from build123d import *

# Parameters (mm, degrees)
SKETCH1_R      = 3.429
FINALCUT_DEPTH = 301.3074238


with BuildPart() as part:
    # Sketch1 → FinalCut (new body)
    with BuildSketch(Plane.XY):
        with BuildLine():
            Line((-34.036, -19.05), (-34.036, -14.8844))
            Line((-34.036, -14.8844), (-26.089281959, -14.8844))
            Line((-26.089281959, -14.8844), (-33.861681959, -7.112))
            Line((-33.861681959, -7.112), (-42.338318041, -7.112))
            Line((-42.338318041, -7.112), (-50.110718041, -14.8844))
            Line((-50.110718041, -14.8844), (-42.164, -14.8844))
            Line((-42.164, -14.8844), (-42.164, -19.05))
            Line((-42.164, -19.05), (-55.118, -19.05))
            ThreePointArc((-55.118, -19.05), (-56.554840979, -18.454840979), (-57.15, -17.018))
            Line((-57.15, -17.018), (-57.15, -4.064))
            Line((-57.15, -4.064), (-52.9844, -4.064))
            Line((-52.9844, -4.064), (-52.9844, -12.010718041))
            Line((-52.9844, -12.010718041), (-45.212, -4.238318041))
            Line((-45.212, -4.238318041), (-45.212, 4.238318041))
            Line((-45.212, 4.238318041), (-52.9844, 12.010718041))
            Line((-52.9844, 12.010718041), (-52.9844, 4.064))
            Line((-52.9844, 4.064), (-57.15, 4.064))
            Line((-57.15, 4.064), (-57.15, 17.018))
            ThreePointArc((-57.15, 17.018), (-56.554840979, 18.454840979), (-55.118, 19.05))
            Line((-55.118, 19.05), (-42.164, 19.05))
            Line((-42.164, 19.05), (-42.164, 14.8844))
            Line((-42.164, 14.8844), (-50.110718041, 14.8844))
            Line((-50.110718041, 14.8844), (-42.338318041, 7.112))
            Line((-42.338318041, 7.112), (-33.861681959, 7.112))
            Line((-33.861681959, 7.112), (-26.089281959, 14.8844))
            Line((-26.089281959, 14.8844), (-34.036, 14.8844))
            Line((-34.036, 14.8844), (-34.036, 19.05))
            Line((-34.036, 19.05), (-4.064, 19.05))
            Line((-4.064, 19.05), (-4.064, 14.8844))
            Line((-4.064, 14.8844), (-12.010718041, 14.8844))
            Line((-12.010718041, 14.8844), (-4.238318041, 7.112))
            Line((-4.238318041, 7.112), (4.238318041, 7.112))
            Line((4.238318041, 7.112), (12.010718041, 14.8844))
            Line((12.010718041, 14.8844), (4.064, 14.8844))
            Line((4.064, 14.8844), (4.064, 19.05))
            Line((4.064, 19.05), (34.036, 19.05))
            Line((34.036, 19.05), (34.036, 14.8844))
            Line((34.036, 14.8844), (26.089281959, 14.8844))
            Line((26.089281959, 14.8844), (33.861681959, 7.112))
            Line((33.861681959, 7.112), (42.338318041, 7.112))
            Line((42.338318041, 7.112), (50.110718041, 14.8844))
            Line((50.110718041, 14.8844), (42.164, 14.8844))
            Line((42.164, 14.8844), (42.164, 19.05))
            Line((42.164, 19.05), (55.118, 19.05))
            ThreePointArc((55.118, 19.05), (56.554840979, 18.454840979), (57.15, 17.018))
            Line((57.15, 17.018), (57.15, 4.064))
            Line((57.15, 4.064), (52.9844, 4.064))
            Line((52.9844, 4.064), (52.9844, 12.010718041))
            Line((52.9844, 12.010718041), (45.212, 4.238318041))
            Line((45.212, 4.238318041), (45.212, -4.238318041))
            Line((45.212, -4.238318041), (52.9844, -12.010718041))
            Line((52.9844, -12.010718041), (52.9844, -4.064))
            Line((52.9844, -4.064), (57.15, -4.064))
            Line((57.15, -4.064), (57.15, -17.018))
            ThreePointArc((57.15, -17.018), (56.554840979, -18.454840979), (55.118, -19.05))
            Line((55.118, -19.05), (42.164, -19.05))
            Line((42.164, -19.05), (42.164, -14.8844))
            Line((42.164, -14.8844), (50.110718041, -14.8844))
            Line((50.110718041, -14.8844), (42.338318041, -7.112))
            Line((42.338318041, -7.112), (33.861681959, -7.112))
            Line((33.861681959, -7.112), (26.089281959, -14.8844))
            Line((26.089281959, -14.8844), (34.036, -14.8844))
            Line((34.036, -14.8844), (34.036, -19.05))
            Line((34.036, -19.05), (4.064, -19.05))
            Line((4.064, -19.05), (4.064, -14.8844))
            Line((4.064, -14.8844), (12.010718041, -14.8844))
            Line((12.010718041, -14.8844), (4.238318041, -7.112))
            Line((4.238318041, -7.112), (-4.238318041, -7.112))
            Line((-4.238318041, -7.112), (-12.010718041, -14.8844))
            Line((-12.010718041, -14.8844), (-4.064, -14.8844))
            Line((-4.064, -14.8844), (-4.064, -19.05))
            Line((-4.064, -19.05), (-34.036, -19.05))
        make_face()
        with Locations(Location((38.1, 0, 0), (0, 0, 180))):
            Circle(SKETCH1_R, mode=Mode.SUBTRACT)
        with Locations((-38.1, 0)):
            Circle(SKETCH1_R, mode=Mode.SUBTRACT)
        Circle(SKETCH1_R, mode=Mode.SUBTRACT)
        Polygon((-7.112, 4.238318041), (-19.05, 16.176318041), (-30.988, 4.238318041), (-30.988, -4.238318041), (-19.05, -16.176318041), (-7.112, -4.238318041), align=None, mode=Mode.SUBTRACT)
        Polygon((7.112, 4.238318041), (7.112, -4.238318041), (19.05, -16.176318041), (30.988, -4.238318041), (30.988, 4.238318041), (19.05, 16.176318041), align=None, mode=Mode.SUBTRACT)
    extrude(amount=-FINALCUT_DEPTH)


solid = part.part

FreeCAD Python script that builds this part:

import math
import FreeCAD as App
import Part
import Sketcher

V = App.Vector
Q = App.Units.Quantity


def add_polygon(sketch, points):
    """Adds a closed chain of lines whose ends are joined by coincident constraints."""
    first, n = sketch.GeometryCount, len(points)
    for a, b in zip(points, points[1:] + points[:1]):
        sketch.addGeometry(Part.LineSegment(App.Vector(*a, 0), App.Vector(*b, 0)), False)
    for i in range(n):
        sketch.addConstraint(Sketcher.Constraint("Coincident", first + i, 2, first + (i + 1) % n, 1))

doc = App.newDocument("Part")
body = doc.addObject("PartDesign::Body", "Body")

sketch1 = body.newObject("Sketcher::SketchObject", "Sketch")
sketch1.AttachmentSupport = (doc.getObject("XY_Plane"), [""])
sketch1.MapMode = "FlatFace"
sketch1.addGeometry(Part.LineSegment(V(-34, -14.9, 0), V(-34, -19.1, 0)), False)
sketch1.addGeometry(Part.LineSegment(V(-34, -19.1, 0), V(-4.1, -19.1, 0)), False)
sketch1.addGeometry(Part.LineSegment(V(-4.1, -19.1, 0), V(-4.1, -14.9, 0)), False)
sketch1.addGeometry(Part.LineSegment(V(-4.1, -14.9, 0), V(-12, -14.9, 0)), False)
sketch1.addGeometry(Part.LineSegment(V(-12, -14.9, 0), V(-4.2, -7.1, 0)), False)
sketch1.addGeometry(Part.LineSegment(V(-4.2, -7.1, 0), V(4.2, -7.1, 0)), False)
sketch1.addGeometry(Part.LineSegment(V(4.2, -7.1, 0), V(12, -14.9, 0)), False)
sketch1.addGeometry(Part.LineSegment(V(12, -14.9, 0), V(4.1, -14.9, 0)), False)
sketch1.addGeometry(Part.LineSegment(V(4.1, -14.9, 0), V(4.1, -19.1, 0)), False)
sketch1.addGeometry(Part.LineSegment(V(4.1, -19.1, 0), V(34, -19.1, 0)), False)
sketch1.addGeometry(Part.LineSegment(V(34, -19.1, 0), V(34, -14.9, 0)), False)
sketch1.addGeometry(Part.LineSegment(V(34, -14.9, 0), V(26.1, -14.9, 0)), False)
sketch1.addGeometry(Part.LineSegment(V(26.1, -14.9, 0), V(33.9, -7.1, 0)), False)
sketch1.addGeometry(Part.LineSegment(V(33.9, -7.1, 0), V(42.3, -7.1, 0)), False)
sketch1.addGeometry(Part.LineSegment(V(42.3, -7.1, 0), V(50.1, -14.9, 0)), False)
sketch1.addGeometry(Part.LineSegment(V(50.1, -14.9, 0), V(42.2, -14.9, 0)), False)
sketch1.addGeometry(Part.LineSegment(V(42.2, -14.9, 0), V(42.2, -19.1, 0)), False)
sketch1.addGeometry(Part.LineSegment(V(42.2, -19.1, 0), V(55.1, -19.1, 0)), False)
sketch1.addGeometry(Part.ArcOfCircle(Part.Circle(V(55.1, -17, 0), V(0, 0, 1), 2), math.radians(-90), math.radians(0)), False)
sketch1.addGeometry(Part.LineSegment(V(57.1, -17, 0), V(57.1, -4.1, 0)), False)
sketch1.addGeometry(Part.LineSegment(V(57.1, -4.1, 0), V(53, -4.1, 0)), False)
sketch1.addGeometry(Part.LineSegment(V(53, -4.1, 0), V(53, -12, 0)), False)
sketch1.addGeometry(Part.LineSegment(V(53, -12, 0), V(45.2, -4.2, 0)), False)
sketch1.addGeometry(Part.LineSegment(V(45.2, -4.2, 0), V(45.2, 4.2, 0)), False)
sketch1.addGeometry(Part.LineSegment(V(45.2, 4.2, 0), V(53, 12, 0)), False)
sketch1.addGeometry(Part.LineSegment(V(53, 12, 0), V(53, 4.1, 0)), False)
sketch1.addGeometry(Part.LineSegment(V(53, 4.1, 0), V(57.1, 4.1, 0)), False)
sketch1.addGeometry(Part.LineSegment(V(57.1, 4.1, 0), V(57.1, 17, 0)), False)
sketch1.addGeometry(Part.ArcOfCircle(Part.Circle(V(55.1, 17, 0), V(0, 0, 1), 2), math.radians(0), math.radians(90)), False)
sketch1.addGeometry(Part.LineSegment(V(55.1, 19.1, 0), V(42.2, 19.1, 0)), False)
sketch1.addGeometry(Part.LineSegment(V(42.2, 19.1, 0), V(42.2, 14.9, 0)), False)
sketch1.addGeometry(Part.LineSegment(V(42.2, 14.9, 0), V(50.1, 14.9, 0)), False)
sketch1.addGeometry(Part.LineSegment(V(50.1, 14.9, 0), V(42.3, 7.1, 0)), False)
sketch1.addGeometry(Part.LineSegment(V(42.3, 7.1, 0), V(33.9, 7.1, 0)), False)
sketch1.addGeometry(Part.LineSegment(V(33.9, 7.1, 0), V(26.1, 14.9, 0)), False)
sketch1.addGeometry(Part.LineSegment(V(26.1, 14.9, 0), V(34, 14.9, 0)), False)
sketch1.addGeometry(Part.LineSegment(V(34, 14.9, 0), V(34, 19.1, 0)), False)
sketch1.addGeometry(Part.LineSegment(V(34, 19.1, 0), V(4.1, 19.1, 0)), False)
sketch1.addGeometry(Part.LineSegment(V(4.1, 19.1, 0), V(4.1, 14.9, 0)), False)
sketch1.addGeometry(Part.LineSegment(V(4.1, 14.9, 0), V(12, 14.9, 0)), False)
sketch1.addGeometry(Part.LineSegment(V(12, 14.9, 0), V(4.2, 7.1, 0)), False)
sketch1.addGeometry(Part.LineSegment(V(4.2, 7.1, 0), V(-4.2, 7.1, 0)), False)
sketch1.addGeometry(Part.LineSegment(V(-4.2, 7.1, 0), V(-12, 14.9, 0)), False)
sketch1.addGeometry(Part.LineSegment(V(-12, 14.9, 0), V(-4.1, 14.9, 0)), False)
sketch1.addGeometry(Part.LineSegment(V(-4.1, 14.9, 0), V(-4.1, 19.1, 0)), False)
sketch1.addGeometry(Part.LineSegment(V(-4.1, 19.1, 0), V(-34, 19.1, 0)), False)
sketch1.addGeometry(Part.LineSegment(V(-34, 19.1, 0), V(-34, 14.9, 0)), False)
sketch1.addGeometry(Part.LineSegment(V(-34, 14.9, 0), V(-26.1, 14.9, 0)), False)
sketch1.addGeometry(Part.LineSegment(V(-26.1, 14.9, 0), V(-33.9, 7.1, 0)), False)
sketch1.addGeometry(Part.LineSegment(V(-33.9, 7.1, 0), V(-42.3, 7.1, 0)), False)
sketch1.addGeometry(Part.LineSegment(V(-42.3, 7.1, 0), V(-50.1, 14.9, 0)), False)
sketch1.addGeometry(Part.LineSegment(V(-50.1, 14.9, 0), V(-42.2, 14.9, 0)), False)
sketch1.addGeometry(Part.LineSegment(V(-42.2, 14.9, 0), V(-42.2, 19.1, 0)), False)
sketch1.addGeometry(Part.LineSegment(V(-42.2, 19.1, 0), V(-55.1, 19.1, 0)), False)
sketch1.addGeometry(Part.ArcOfCircle(Part.Circle(V(-55.1, 17, 0), V(0, 0, 1), 2), math.radians(90), math.radians(180)), False)
sketch1.addGeometry(Part.LineSegment(V(-57.1, 17, 0), V(-57.1, 4.1, 0)), False)
sketch1.addGeometry(Part.LineSegment(V(-57.1, 4.1, 0), V(-53, 4.1, 0)), False)
sketch1.addGeometry(Part.LineSegment(V(-53, 4.1, 0), V(-53, 12, 0)), False)
sketch1.addGeometry(Part.LineSegment(V(-53, 12, 0), V(-45.2, 4.2, 0)), False)
sketch1.addGeometry(Part.LineSegment(V(-45.2, 4.2, 0), V(-45.2, -4.2, 0)), False)
sketch1.addGeometry(Part.LineSegment(V(-45.2, -4.2, 0), V(-53, -12, 0)), False)
sketch1.addGeometry(Part.LineSegment(V(-53, -12, 0), V(-53, -4.1, 0)), False)
sketch1.addGeometry(Part.LineSegment(V(-53, -4.1, 0), V(-57.1, -4.1, 0)), False)
sketch1.addGeometry(Part.LineSegment(V(-57.1, -4.1, 0), V(-57.1, -17, 0)), False)
sketch1.addGeometry(Part.ArcOfCircle(Part.Circle(V(-55.1, -17, 0), V(0, 0, 1), 2), math.radians(-180), math.radians(-90)), False)
sketch1.addGeometry(Part.LineSegment(V(-55.1, -19.1, 0), V(-42.2, -19.1, 0)), False)
sketch1.addGeometry(Part.LineSegment(V(-42.2, -19.1, 0), V(-42.2, -14.9, 0)), False)
sketch1.addGeometry(Part.LineSegment(V(-42.2, -14.9, 0), V(-50.1, -14.9, 0)), False)
sketch1.addGeometry(Part.LineSegment(V(-50.1, -14.9, 0), V(-42.3, -7.1, 0)), False)
sketch1.addGeometry(Part.LineSegment(V(-42.3, -7.1, 0), V(-33.9, -7.1, 0)), False)
sketch1.addGeometry(Part.LineSegment(V(-33.9, -7.1, 0), V(-26.1, -14.9, 0)), False)
sketch1.addGeometry(Part.LineSegment(V(-26.1, -14.9, 0), V(-34, -14.9, 0)), False)
sketch1.addGeometry(Part.Circle(V(38.1, 0, 0), V(0, 0, 1), 3.4), False)
add_polygon(sketch1, [(7.1, 4.2), (19.1, 16.2), (31, 4.2), (31, -4.2), (19.1, -16.2), (7.1, -4.2)])
sketch1.addGeometry(Part.Circle(V(0, 0, 0), V(0, 0, 1), 3.4), False)
add_polygon(sketch1, [(-7.1, 4.2), (-7.1, -4.2), (-19.1, -16.2), (-31, -4.2), (-31, 4.2), (-19.1, 16.2)])
sketch1.addGeometry(Part.Circle(V(-38.1, 0, 0), V(0, 0, 1), 3.4), False)
sketch1.addConstraint([
    Sketcher.Constraint("Coincident", 0, 2, 1, 1),
    Sketcher.Constraint("Coincident", 1, 2, 2, 1),
    Sketcher.Constraint("Coincident", 2, 2, 3, 1),
    Sketcher.Constraint("Coincident", 3, 2, 4, 1),
    Sketcher.Constraint("Coincident", 4, 2, 5, 1),
    Sketcher.Constraint("Coincident", 5, 2, 6, 1),
    Sketcher.Constraint("Coincident", 6, 2, 7, 1),
    Sketcher.Constraint("Coincident", 7, 2, 8, 1),
    Sketcher.Constraint("Coincident", 8, 2, 9, 1),
    Sketcher.Constraint("Coincident", 9, 2, 10, 1),
    Sketcher.Constraint("Coincident", 10, 2, 11, 1),
    Sketcher.Constraint("Coincident", 11, 2, 12, 1),
    Sketcher.Constraint("Coincident", 12, 2, 13, 1),
    Sketcher.Constraint("Coincident", 13, 2, 14, 1),
    Sketcher.Constraint("Coincident", 14, 2, 15, 1),
    Sketcher.Constraint("Coincident", 15, 2, 16, 1),
    Sketcher.Constraint("Coincident", 16, 2, 17, 1),
    Sketcher.Constraint("Tangent", 17, 2, 18, 1),
    Sketcher.Constraint("Tangent", 18, 2, 19, 1),
    Sketcher.Constraint("Coincident", 19, 2, 20, 1),
    Sketcher.Constraint("Coincident", 20, 2, 21, 1),
    Sketcher.Constraint("Coincident", 21, 2, 22, 1),
    Sketcher.Constraint("Coincident", 22, 2, 23, 1),
    Sketcher.Constraint("Coincident", 23, 2, 24, 1),
    Sketcher.Constraint("Coincident", 24, 2, 25, 1),
    Sketcher.Constraint("Coincident", 25, 2, 26, 1),
    Sketcher.Constraint("Coincident", 26, 2, 27, 1),
    Sketcher.Constraint("Tangent", 27, 2, 28, 1),
    Sketcher.Constraint("Tangent", 28, 2, 29, 1),
    Sketcher.Constraint("Coincident", 29, 2, 30, 1),
    Sketcher.Constraint("Coincident", 30, 2, 31, 1),
    Sketcher.Constraint("Coincident", 31, 2, 32, 1),
    Sketcher.Constraint("Coincident", 32, 2, 33, 1),
    Sketcher.Constraint("Coincident", 33, 2, 34, 1),
    Sketcher.Constraint("Coincident", 34, 2, 35, 1),
    Sketcher.Constraint("Coincident", 35, 2, 36, 1),
    Sketcher.Constraint("Coincident", 36, 2, 37, 1),
    Sketcher.Constraint("Coincident", 37, 2, 38, 1),
    Sketcher.Constraint("Coincident", 38, 2, 39, 1),
    Sketcher.Constraint("Coincident", 39, 2, 40, 1),
    Sketcher.Constraint("Coincident", 40, 2, 41, 1),
    Sketcher.Constraint("Coincident", 41, 2, 42, 1),
    Sketcher.Constraint("Coincident", 42, 2, 43, 1),
    Sketcher.Constraint("Coincident", 43, 2, 44, 1),
    Sketcher.Constraint("Coincident", 44, 2, 45, 1),
    Sketcher.Constraint("Coincident", 45, 2, 46, 1),
    Sketcher.Constraint("Coincident", 46, 2, 47, 1),
    Sketcher.Constraint("Coincident", 47, 2, 48, 1),
    Sketcher.Constraint("Coincident", 48, 2, 49, 1),
    Sketcher.Constraint("Coincident", 49, 2, 50, 1),
    Sketcher.Constraint("Coincident", 50, 2, 51, 1),
    Sketcher.Constraint("Coincident", 51, 2, 52, 1),
    Sketcher.Constraint("Coincident", 52, 2, 53, 1),
    Sketcher.Constraint("Tangent", 53, 2, 54, 1),
    Sketcher.Constraint("Tangent", 54, 2, 55, 1),
    Sketcher.Constraint("Coincident", 55, 2, 56, 1),
    Sketcher.Constraint("Coincident", 56, 2, 57, 1),
    Sketcher.Constraint("Coincident", 57, 2, 58, 1),
    Sketcher.Constraint("Coincident", 58, 2, 59, 1),
    Sketcher.Constraint("Coincident", 59, 2, 60, 1),
    Sketcher.Constraint("Coincident", 60, 2, 61, 1),
    Sketcher.Constraint("Coincident", 61, 2, 62, 1),
    Sketcher.Constraint("Coincident", 62, 2, 63, 1),
    Sketcher.Constraint("Tangent", 63, 2, 64, 1),
    Sketcher.Constraint("Tangent", 64, 2, 65, 1),
    Sketcher.Constraint("Coincident", 65, 2, 66, 1),
    Sketcher.Constraint("Coincident", 66, 2, 67, 1),
    Sketcher.Constraint("Coincident", 67, 2, 68, 1),
    Sketcher.Constraint("Coincident", 68, 2, 69, 1),
    Sketcher.Constraint("Coincident", 69, 2, 70, 1),
    Sketcher.Constraint("Coincident", 70, 2, 71, 1),
    Sketcher.Constraint("Coincident", 71, 2, 0, 1),
    Sketcher.Constraint("Vertical", 0),
    Sketcher.Constraint("Horizontal", 1),
    Sketcher.Constraint("Vertical", 2),
    Sketcher.Constraint("Horizontal", 3),
    Sketcher.Constraint("Horizontal", 5),
    Sketcher.Constraint("Horizontal", 7),
    Sketcher.Constraint("Vertical", 8),
    Sketcher.Constraint("Horizontal", 9),
    Sketcher.Constraint("Vertical", 10),
    Sketcher.Constraint("Horizontal", 11),
    Sketcher.Constraint("Horizontal", 13),
    Sketcher.Constraint("Horizontal", 15),
    Sketcher.Constraint("Vertical", 16),
    Sketcher.Constraint("Horizontal", 17),
    Sketcher.Constraint("Vertical", 19),
    Sketcher.Constraint("Horizontal", 20),
    Sketcher.Constraint("Vertical", 21),
    Sketcher.Constraint("Vertical", 23),
    Sketcher.Constraint("Vertical", 25),
    Sketcher.Constraint("Horizontal", 26),
    Sketcher.Constraint("Vertical", 27),
    Sketcher.Constraint("Horizontal", 29),
    Sketcher.Constraint("Vertical", 30),
    Sketcher.Constraint("Horizontal", 31),
    Sketcher.Constraint("Horizontal", 33),
    Sketcher.Constraint("Horizontal", 35),
    Sketcher.Constraint("Vertical", 36),
    Sketcher.Constraint("Horizontal", 37),
    Sketcher.Constraint("Vertical", 38),
    Sketcher.Constraint("Horizontal", 39),
    Sketcher.Constraint("Horizontal", 41),
    Sketcher.Constraint("Horizontal", 43),
    Sketcher.Constraint("Vertical", 44),
    Sketcher.Constraint("Horizontal", 45),
    Sketcher.Constraint("Vertical", 46),
    Sketcher.Constraint("Horizontal", 47),
    Sketcher.Constraint("Horizontal", 49),
    Sketcher.Constraint("Horizontal", 51),
    Sketcher.Constraint("Vertical", 52),
    Sketcher.Constraint("Horizontal", 53),
    Sketcher.Constraint("Vertical", 55),
    Sketcher.Constraint("Horizontal", 56),
    Sketcher.Constraint("Vertical", 57),
    Sketcher.Constraint("Vertical", 59),
    Sketcher.Constraint("Vertical", 61),
    Sketcher.Constraint("Horizontal", 62),
    Sketcher.Constraint("Vertical", 63),
    Sketcher.Constraint("Horizontal", 65),
    Sketcher.Constraint("Vertical", 66),
    Sketcher.Constraint("Horizontal", 67),
    Sketcher.Constraint("Horizontal", 69),
    Sketcher.Constraint("Horizontal", 71),
    Sketcher.Constraint("Vertical", 75),
    Sketcher.Constraint("Vertical", 78),
    Sketcher.Constraint("Vertical", 80),
    Sketcher.Constraint("Vertical", 83),
    Sketcher.Constraint("Coincident", 79, 3, -1, 1),
    Sketcher.Constraint("Equal", 18, 28),
    Sketcher.Constraint("Equal", 28, 54),
    Sketcher.Constraint("Equal", 54, 64),
    Sketcher.Constraint("Equal", 72, 79),
    Sketcher.Constraint("Equal", 79, 86),
    Sketcher.Constraint("Symmetric", 18, 3, 54, 3, -1, 1),
    Sketcher.Constraint("Symmetric", 28, 3, 64, 3, -1, 1),
    Sketcher.Constraint("Symmetric", 72, 3, 86, 3, -1, 1),
    Sketcher.Constraint("Symmetric", 0, 2, 36, 2, -1, 1),
    Sketcher.Constraint("Symmetric", 2, 2, 38, 2, -1, 1),
    Sketcher.Constraint("Symmetric", 4, 2, 40, 2, -1, 1),
    Sketcher.Constraint("Symmetric", 6, 2, 42, 2, -1, 1),
    Sketcher.Constraint("Symmetric", 8, 2, 44, 2, -1, 1),
    Sketcher.Constraint("Symmetric", 10, 2, 46, 2, -1, 1),
    Sketcher.Constraint("Symmetric", 12, 2, 48, 2, -1, 1),
    Sketcher.Constraint("Symmetric", 14, 2, 50, 2, -1, 1),
    Sketcher.Constraint("Symmetric", 20, 2, 56, 2, -1, 1),
    Sketcher.Constraint("Symmetric", 22, 2, 58, 2, -1, 1),
    Sketcher.Constraint("Symmetric", 24, 2, 60, 2, -1, 1),
    Sketcher.Constraint("Symmetric", 30, 2, 66, 2, -1, 1),
    Sketcher.Constraint("Symmetric", 32, 2, 68, 2, -1, 1),
    Sketcher.Constraint("Symmetric", 34, 2, 70, 2, -1, 1),
    Sketcher.Constraint("Symmetric", 78, 2, 80, 2, -1, 1),
    Sketcher.Constraint("Symmetric", 73, 2, 81, 2, -1, 1),
    Sketcher.Constraint("Symmetric", 74, 2, 82, 2, -1, 1),
    Sketcher.Constraint("Symmetric", 76, 2, 84, 2, -1, 1),
    Sketcher.Constraint("Symmetric", 28, 3, 54, 3, -2),
    Sketcher.Constraint("Symmetric", 3, 2, 6, 2, -2),
    Sketcher.Constraint("Symmetric", 1, 2, 8, 2, -2),
    Sketcher.Constraint("Symmetric", 35, 2, 46, 2, -2),
    Sketcher.Constraint("Symmetric", 33, 2, 48, 2, -2),
    Sketcher.Constraint("Symmetric", 31, 2, 50, 2, -2),
    Sketcher.Constraint("Symmetric", 25, 2, 56, 2, -2),
    Sketcher.Constraint("Symmetric", 76, 2, 81, 2, -2),
    Sketcher.Constraint("PointOnObject", 72, 3, -1),
    Sketcher.Constraint("Perpendicular", 4, 6),
    Sketcher.Constraint("Perpendicular", 6, 12),
    Sketcher.Constraint("Perpendicular", 12, 14),
    Sketcher.Constraint("Parallel", 14, 22),
    Sketcher.Constraint("Perpendicular", 22, 24),
    Sketcher.Constraint("Parallel", 24, 32),
    Sketcher.Constraint("Perpendicular", 32, 34),
    Sketcher.Constraint("Perpendicular", 34, 40),
    Sketcher.Constraint("Perpendicular", 40, 42),
    Sketcher.Constraint("Perpendicular", 42, 48),
    Sketcher.Constraint("Perpendicular", 48, 50),
    Sketcher.Constraint("Parallel", 50, 58),
    Sketcher.Constraint("Perpendicular", 58, 60),
    Sketcher.Constraint("Parallel", 60, 68),
    Sketcher.Constraint("Perpendicular", 68, 70),
    Sketcher.Constraint("Perpendicular", 70, 73),
    Sketcher.Constraint("Perpendicular", 73, 74),
    Sketcher.Constraint("Perpendicular", 74, 76),
    Sketcher.Constraint("Perpendicular", 76, 77),
    Sketcher.Constraint("Perpendicular", 82, 84),
    Sketcher.Constraint("Perpendicular", 84, 85),
    Sketcher.Constraint("Horizontal", 7, 2, 10, 2),
    Sketcher.Constraint("Horizontal", 5, 2, 12, 2),
    Sketcher.Constraint("Horizontal", 11, 2, 14, 2),
    Sketcher.Constraint("Horizontal", 9, 2, 16, 2),
    Sketcher.Constraint("Horizontal", 24, 2, 57, 2),
    Sketcher.Constraint("Horizontal", 23, 2, 58, 2),
    Sketcher.Constraint("Horizontal", 20, 2, 61, 2),
    Sketcher.Constraint("Horizontal", 58, 2, 74, 2),
    Sketcher.Constraint("Horizontal", 75, 2, 77, 2),
    Sketcher.Constraint("Vertical", 16, 2, 29, 2),
    Sketcher.Constraint("Vertical", 52, 2, 65, 2),
    Sketcher.Constraint("Equal", 7, 11),
    Sketcher.Constraint("Equal", 5, 13),
    Sketcher.Constraint("Equal", 11, 15),
    Sketcher.Constraint("Equal", 62, 0),
    Sketcher.Constraint("Equal", 65, 19),
    Sketcher.Constraint("Equal", 71, 21),
    Sketcher.Constraint("Equal", 69, 23),
    Sketcher.Constraint("Equal", 14, 22),
    Sketcher.Constraint("Diameter", 72, Q("0.27 in")),
    Sketcher.Constraint("Radius", 18, Q("0.08 in")),
    Sketcher.Constraint("DistanceX", 1, 1, 1, 2, Q("1.18 in")),
    Sketcher.Constraint("DistanceX", 17, 1, 17, 2, Q("0.51 in")),
    Sketcher.Constraint("DistanceX", -1, 1, 72, 3, Q("1.5 in")),
    Sketcher.Constraint("DistanceX", 20, 2, 20, 1, Q("0.164 in")),
    Sketcher.Constraint("DistanceX", -1, 1, 18, 3, Q("2.17 in")),
    Sketcher.Constraint("DistanceY", 4, 2, -1, 1, Q("0.28 in")),
    Sketcher.Constraint("DistanceX", -1, 1, 73, 2, Q("0.75 in")),
    Sketcher.Constraint("DistanceX", -1, 1, 74, 2, Q("1.22 in")),
    Sketcher.Constraint("DistanceX", 3, 2, 3, 1, Q("7.946718 mm")),
])
pad1 = body.newObject("PartDesign::Pad", "Pad")
pad1.Profile = sketch1
pad1.Length = 301.307424
pad1.Reversed = True

doc.recompute()
